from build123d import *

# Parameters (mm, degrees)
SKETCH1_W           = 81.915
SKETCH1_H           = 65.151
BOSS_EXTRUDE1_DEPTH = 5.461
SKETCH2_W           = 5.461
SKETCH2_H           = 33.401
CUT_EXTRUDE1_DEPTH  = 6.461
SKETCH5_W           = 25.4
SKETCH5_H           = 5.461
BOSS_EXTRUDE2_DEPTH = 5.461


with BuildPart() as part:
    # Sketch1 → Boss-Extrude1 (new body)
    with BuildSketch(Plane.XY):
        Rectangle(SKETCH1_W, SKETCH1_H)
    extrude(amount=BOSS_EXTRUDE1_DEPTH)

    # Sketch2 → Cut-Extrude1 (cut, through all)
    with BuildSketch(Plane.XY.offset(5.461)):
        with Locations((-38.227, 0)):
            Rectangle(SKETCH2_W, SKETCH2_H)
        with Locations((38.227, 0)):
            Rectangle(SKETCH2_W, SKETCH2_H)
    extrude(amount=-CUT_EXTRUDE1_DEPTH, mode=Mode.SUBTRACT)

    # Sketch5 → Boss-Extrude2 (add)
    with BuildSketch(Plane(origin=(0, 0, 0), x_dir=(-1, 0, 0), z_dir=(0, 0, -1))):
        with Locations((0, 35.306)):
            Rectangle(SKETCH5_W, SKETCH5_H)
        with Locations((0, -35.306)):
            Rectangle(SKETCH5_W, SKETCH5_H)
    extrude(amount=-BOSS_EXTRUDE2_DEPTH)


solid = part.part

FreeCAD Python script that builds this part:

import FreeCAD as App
import Part
import Sketcher
from FreeCAD import Vector
Q = App.Units.Quantity


def add_polygon(sketch, points):
    """Adds a closed chain of lines whose ends are joined by coincident constraints."""
    first, n = sketch.GeometryCount, len(points)
    for a, b in zip(points, points[1:] + points[:1]):
        sketch.addGeometry(Part.LineSegment(App.Vector(*a, 0), App.Vector(*b, 0)), False)
    for i in range(n):
        sketch.addConstraint(Sketcher.Constraint("Coincident", first + i, 2, first + (i + 1) % n, 1))

doc = App.newDocument("Part")
body = doc.addObject("PartDesign::Body", "Body")

# Sketch on XY plane
sketch1 = doc.addObject("Sketcher::SketchObject", "Sketch")
body.addObject(sketch1)
sketch1.AttachmentSupport = (doc.XY_Plane, [""])
sketch1.MapMode = "FlatFace"
add_polygon(sketch1, [(-41, 33), (-41, -33), (41, -33), (41, 33)])  # lines 0-3
sketch1.addConstraint([
    Sketcher.Constraint("Vertical", 0),
    Sketcher.Constraint("Horizontal", 1),
    Sketcher.Constraint("Vertical", 2),
    Sketcher.Constraint("Horizontal", 3),
    Sketcher.Constraint("Symmetric", 0, 2, 2, 2, -1, 1),
    Sketcher.Constraint("DistanceX", 1, 1, 1, 2, Q("3.225 in")),
    Sketcher.Constraint("DistanceY", 0, 2, 0, 1, Q("2.565 in")),
])
pad1 = doc.addObject("PartDesign::Pad", "Pad")
body.addObject(pad1)
pad1.Profile = sketch1
pad1.Length = Q("0.215 in")

# Sketch on XY plane
sketch2 = doc.addObject("Sketcher::SketchObject", "Sketch001")
body.addObject(sketch2)
sketch2.AttachmentSupport = (doc.XY_Plane, [""])
sketch2.MapMode = "FlatFace"
sketch2.AttachmentOffset = App.Placement(Vector(0, 0, 0.215 * 25.4), App.Rotation())
add_polygon(sketch2, [(-41, 17), (-41, -17), (-35, -17), (-35, 17)])  # lines 0-3
add_polygon(sketch2, [(35, 17), (35, -17), (41, -17), (41, 17)])  # lines 4-7
sketch2.addConstraint([
    Sketcher.Constraint("Vertical", 0),
    Sketcher.Constraint("Horizontal", 1),
    Sketcher.Constraint("Vertical", 2),
    Sketcher.Constraint("Horizontal", 3),
    Sketcher.Constraint("Vertical", 4),
    Sketcher.Constraint("Horizontal", 5),
    Sketcher.Constraint("Vertical", 6),
    Sketcher.Constraint("Horizontal", 7),
    Sketcher.Constraint("Symmetric", 2, 2, 4, 2, -1, 1),
    Sketcher.Constraint("Symmetric", 0, 2, 6, 2, -1, 1),
    Sketcher.Constraint("Horizontal", 1, 2, 4, 2),
    Sketcher.Constraint("DistanceX", 1, 1, 1, 2, Q("0.215 in")),
    Sketcher.Constraint("DistanceY", 0, 2, 0, 1, Q("1.315 in")),
    Sketcher.Constraint("DistanceX", 0, 2, 4, 2, Q("3.01 in")),
])
pocket1 = doc.addObject("PartDesign::Pocket", "Pocket")
body.addObject(pocket1)
pocket1.Profile = sketch2
pocket1.Type = "ThroughAll"

# Sketch on XY plane
sketch3 = doc.addObject("Sketcher::SketchObject", "Sketch002")
body.addObject(sketch3)
sketch3.AttachmentSupport = (doc.XY_Plane, [""])
sketch3.MapMode = "FlatFace"
add_polygon(sketch3, [(13, 38), (13, 33), (-13, 33), (-13, 38)])  # lines 0-3
add_polygon(sketch3, [(13, -33), (13, -38), (-13, -38), (-13, -33)])  # lines 4-7
sketch3.addConstraint([
    Sketcher.Constraint("Vertical", 0),
    Sketcher.Constraint("Horizontal", 1),
    Sketcher.Constraint("Vertical", 2),
    Sketcher.Constraint("Horizontal", 3),
    Sketcher.Constraint("Vertical", 4),
    Sketcher.Constraint("Horizontal", 5),
    Sketcher.Constraint("Vertical", 6),
    Sketcher.Constraint("Horizontal", 7),
    Sketcher.Constraint("Symmetric", 2, 2, 4, 2, -1, 1),
    Sketcher.Constraint("Symmetric", 0, 2, 6, 2, -1, 1),
    Sketcher.Constraint("Vertical", 3, 2, 4, 2),
    Sketcher.Constraint("DistanceX", 1, 2, 1, 1, Q("1 in")),
    Sketcher.Constraint("DistanceY", 0, 2, 0, 1, Q("0.215 in")),
    Sketcher.Constraint("DistanceY", 4, 2, 0, 2, Q("2.78 in")),
])
pad2 = doc.addObject("PartDesign::Pad", "Pad001")
body.addObject(pad2)
pad2.Profile = sketch3
pad2.Length = Q("0.215 in")

doc.recompute()
